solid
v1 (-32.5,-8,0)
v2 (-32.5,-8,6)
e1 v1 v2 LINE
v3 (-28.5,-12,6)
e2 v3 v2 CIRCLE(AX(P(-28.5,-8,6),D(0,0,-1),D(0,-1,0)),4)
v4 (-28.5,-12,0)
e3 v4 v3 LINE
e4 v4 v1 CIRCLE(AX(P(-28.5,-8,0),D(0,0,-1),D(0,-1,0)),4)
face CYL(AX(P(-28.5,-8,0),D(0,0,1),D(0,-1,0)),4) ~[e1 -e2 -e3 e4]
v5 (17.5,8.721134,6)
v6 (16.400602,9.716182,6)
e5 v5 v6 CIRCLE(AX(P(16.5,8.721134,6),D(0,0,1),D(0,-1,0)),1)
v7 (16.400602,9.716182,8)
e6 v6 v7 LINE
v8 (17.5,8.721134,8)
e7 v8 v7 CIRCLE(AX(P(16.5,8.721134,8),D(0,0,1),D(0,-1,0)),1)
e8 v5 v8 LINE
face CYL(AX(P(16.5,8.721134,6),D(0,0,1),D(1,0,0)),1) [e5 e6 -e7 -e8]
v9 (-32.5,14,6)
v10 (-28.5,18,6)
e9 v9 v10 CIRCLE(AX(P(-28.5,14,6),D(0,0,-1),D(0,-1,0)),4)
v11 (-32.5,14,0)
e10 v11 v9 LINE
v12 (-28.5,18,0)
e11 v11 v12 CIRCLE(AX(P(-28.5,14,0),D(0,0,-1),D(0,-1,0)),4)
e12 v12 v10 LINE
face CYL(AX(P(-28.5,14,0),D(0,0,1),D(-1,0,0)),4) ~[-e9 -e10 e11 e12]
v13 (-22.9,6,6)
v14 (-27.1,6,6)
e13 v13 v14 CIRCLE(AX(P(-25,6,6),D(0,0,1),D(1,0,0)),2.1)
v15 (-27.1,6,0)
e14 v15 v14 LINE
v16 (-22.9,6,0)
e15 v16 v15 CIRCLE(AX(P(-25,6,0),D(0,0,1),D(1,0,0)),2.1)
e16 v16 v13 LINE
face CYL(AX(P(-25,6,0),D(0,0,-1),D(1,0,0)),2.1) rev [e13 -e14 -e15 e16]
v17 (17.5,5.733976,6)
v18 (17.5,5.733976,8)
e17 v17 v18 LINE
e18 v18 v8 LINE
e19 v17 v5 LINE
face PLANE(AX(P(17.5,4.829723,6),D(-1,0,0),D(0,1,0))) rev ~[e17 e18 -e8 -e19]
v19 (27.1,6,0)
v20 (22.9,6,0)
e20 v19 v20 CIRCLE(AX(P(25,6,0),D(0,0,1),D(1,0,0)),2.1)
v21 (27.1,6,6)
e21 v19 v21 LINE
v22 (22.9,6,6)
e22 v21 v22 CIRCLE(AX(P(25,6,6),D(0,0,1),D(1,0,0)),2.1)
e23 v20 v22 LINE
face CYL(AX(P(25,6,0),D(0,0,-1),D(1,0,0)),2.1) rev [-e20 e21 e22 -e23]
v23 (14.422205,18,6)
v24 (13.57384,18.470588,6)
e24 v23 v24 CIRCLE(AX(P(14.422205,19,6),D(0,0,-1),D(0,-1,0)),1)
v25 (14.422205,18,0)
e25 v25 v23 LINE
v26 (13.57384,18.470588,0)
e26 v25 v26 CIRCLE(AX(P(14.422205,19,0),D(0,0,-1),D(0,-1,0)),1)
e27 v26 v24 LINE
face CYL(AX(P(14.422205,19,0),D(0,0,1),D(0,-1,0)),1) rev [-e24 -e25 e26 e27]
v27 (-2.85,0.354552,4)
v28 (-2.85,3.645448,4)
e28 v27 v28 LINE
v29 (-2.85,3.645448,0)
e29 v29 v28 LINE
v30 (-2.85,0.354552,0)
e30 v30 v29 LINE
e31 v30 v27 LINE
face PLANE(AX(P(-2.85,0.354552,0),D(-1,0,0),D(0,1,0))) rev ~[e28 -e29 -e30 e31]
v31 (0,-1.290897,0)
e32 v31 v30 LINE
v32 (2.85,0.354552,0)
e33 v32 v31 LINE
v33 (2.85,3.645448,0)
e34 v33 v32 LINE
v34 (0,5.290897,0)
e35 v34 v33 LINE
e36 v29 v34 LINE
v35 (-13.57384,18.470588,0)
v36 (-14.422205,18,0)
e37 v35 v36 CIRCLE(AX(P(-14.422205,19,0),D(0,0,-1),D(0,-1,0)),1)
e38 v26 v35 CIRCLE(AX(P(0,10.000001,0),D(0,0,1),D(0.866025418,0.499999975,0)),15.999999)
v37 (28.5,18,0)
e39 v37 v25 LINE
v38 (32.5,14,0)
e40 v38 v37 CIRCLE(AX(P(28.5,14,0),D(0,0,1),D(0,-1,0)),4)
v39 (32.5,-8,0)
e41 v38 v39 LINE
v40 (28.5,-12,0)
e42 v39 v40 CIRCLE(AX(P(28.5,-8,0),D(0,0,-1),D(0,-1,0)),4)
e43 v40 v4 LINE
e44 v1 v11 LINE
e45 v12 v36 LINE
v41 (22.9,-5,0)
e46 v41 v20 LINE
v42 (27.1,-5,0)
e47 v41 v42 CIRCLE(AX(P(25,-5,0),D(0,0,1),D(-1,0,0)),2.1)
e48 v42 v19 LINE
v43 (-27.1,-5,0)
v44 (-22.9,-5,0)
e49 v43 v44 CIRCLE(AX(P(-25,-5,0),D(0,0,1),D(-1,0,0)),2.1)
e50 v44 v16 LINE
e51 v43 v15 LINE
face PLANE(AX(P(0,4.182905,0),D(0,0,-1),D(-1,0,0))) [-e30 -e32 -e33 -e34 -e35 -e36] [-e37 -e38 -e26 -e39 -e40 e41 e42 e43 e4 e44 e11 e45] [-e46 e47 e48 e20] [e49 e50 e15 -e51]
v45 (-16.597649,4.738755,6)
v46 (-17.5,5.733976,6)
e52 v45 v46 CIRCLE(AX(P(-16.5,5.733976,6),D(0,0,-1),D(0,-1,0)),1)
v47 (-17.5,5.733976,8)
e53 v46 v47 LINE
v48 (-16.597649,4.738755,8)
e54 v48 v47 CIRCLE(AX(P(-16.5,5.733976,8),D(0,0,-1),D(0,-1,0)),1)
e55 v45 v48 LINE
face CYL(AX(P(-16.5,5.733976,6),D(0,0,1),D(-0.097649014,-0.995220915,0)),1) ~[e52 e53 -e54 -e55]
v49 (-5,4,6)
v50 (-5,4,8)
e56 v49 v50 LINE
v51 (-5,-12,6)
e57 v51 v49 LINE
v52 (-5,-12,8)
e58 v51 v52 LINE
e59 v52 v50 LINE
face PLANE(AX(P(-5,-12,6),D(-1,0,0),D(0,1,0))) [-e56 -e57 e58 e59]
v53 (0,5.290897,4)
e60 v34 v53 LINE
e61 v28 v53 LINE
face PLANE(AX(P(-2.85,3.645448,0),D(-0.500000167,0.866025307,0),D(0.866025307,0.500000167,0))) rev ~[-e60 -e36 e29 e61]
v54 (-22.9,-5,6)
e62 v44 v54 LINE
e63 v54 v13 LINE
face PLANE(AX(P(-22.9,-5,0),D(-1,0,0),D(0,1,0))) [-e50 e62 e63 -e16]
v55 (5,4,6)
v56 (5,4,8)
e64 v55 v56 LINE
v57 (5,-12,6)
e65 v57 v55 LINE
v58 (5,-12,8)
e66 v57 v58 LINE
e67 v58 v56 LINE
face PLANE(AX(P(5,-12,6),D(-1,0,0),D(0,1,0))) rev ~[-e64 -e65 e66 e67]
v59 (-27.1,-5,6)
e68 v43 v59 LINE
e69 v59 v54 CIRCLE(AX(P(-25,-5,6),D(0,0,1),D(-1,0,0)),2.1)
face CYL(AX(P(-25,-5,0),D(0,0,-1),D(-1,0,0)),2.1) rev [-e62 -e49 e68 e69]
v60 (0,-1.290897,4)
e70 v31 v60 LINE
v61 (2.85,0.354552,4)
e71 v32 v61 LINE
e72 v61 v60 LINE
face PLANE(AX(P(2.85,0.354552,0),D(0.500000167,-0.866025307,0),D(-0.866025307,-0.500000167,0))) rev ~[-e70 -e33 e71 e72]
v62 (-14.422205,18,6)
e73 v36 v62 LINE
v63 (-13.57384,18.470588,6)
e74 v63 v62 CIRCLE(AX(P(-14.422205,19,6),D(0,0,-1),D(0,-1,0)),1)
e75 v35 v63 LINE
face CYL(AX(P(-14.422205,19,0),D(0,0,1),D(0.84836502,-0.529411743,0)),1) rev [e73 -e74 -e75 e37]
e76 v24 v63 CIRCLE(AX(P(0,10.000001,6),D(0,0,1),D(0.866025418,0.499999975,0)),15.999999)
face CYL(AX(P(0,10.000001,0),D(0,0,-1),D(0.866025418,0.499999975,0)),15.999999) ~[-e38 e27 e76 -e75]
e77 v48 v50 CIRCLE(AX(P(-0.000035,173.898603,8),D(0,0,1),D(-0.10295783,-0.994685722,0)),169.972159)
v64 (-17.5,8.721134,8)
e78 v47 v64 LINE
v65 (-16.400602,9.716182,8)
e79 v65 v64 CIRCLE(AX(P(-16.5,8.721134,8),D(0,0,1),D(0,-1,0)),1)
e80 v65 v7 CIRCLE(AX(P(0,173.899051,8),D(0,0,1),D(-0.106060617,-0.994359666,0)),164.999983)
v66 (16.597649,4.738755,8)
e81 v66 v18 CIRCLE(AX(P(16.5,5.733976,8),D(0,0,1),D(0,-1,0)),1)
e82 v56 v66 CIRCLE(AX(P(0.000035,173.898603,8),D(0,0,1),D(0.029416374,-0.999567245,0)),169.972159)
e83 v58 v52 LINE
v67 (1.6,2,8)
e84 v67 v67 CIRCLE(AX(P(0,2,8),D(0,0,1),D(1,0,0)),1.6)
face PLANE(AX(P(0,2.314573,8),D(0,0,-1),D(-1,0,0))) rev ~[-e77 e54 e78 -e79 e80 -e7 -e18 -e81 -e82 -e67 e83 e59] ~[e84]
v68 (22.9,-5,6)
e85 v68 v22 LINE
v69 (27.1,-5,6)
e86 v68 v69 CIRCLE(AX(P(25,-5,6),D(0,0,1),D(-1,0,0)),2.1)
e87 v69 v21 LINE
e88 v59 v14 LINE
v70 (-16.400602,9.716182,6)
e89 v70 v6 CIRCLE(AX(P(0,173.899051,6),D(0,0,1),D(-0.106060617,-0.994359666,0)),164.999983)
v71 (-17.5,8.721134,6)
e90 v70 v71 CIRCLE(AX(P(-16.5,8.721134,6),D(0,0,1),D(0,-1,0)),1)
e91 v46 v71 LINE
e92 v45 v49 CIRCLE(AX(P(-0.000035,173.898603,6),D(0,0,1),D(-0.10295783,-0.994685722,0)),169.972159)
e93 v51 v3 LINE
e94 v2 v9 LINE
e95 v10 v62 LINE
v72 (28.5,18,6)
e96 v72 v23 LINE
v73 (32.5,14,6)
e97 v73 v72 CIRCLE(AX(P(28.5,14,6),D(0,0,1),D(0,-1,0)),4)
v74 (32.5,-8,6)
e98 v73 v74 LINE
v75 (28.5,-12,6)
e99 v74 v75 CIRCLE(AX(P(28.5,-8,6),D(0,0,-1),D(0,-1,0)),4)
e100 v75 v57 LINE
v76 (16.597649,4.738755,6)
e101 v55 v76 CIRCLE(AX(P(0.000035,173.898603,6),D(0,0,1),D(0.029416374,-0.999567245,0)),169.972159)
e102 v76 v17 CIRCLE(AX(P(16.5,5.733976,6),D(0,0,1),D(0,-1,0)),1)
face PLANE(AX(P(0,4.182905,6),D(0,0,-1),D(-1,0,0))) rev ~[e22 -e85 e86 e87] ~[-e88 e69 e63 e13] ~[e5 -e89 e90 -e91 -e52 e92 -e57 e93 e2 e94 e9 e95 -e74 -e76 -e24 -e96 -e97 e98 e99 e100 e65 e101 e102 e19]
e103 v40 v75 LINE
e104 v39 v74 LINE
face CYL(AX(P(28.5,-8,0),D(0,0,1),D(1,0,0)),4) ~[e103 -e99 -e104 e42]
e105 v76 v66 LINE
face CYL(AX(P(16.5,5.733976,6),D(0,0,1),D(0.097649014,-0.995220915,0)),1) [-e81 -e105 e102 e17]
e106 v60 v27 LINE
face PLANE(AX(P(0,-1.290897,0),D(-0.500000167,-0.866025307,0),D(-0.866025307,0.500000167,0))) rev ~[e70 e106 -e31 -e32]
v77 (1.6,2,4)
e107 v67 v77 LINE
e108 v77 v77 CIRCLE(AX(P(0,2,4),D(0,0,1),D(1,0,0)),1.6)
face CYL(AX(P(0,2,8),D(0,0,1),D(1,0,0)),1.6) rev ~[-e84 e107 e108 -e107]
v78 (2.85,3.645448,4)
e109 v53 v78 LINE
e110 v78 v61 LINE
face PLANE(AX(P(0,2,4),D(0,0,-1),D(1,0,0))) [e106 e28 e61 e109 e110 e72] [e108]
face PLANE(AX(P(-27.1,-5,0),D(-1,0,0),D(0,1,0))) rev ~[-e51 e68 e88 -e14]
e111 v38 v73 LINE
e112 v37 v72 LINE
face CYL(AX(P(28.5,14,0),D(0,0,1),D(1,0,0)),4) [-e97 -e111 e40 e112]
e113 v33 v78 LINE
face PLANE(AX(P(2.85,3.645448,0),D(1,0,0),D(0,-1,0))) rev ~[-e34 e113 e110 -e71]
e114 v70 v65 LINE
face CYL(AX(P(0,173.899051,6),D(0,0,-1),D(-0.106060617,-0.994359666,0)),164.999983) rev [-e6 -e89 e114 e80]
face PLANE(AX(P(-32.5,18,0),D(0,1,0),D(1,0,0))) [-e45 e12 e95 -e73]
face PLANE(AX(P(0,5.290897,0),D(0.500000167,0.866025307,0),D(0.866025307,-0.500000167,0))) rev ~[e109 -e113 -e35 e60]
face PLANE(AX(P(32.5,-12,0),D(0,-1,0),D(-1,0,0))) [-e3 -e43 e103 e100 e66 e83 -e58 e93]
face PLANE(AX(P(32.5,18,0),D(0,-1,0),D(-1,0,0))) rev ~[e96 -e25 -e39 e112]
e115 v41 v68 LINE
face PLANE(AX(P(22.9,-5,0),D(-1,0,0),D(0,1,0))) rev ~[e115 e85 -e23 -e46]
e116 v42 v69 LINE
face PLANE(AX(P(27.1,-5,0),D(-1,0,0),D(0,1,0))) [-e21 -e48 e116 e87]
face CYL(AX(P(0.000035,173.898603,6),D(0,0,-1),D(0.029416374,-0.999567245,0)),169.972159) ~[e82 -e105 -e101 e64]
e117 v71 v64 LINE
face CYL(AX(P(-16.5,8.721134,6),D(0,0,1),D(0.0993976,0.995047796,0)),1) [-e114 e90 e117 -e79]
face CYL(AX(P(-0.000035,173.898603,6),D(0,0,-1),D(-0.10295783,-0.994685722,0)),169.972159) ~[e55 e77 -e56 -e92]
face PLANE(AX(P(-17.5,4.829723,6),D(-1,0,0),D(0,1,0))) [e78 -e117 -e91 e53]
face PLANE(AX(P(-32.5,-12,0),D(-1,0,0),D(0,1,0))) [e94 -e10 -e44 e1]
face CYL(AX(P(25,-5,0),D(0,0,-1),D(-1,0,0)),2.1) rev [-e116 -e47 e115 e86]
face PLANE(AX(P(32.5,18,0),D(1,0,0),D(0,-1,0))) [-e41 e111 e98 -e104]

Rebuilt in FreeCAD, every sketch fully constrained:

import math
import FreeCAD as App
import Part
import Sketcher

V = App.Vector
Q = App.Units.Quantity


def edges_at(feature, points):
    """Names of the edges that pass closest to the given points."""
    edges = feature.Shape.Edges
    near = lambda p: min(range(len(edges)), key=lambda i: edges[i].distToShape(Part.Vertex(*p))[0])
    return sorted({f"Edge{near(p) + 1}" for p in points})


def add_polygon(sketch, points):
    """Adds a closed chain of lines whose ends are joined by coincident constraints."""
    first, n = sketch.GeometryCount, len(points)
    for a, b in zip(points, points[1:] + points[:1]):
        sketch.addGeometry(Part.LineSegment(App.Vector(*a, 0), App.Vector(*b, 0)), False)
    for i in range(n):
        sketch.addConstraint(Sketcher.Constraint("Coincident", first + i, 2, first + (i + 1) % n, 1))

doc = App.newDocument("Part")
params = doc.addObject("Spreadsheet::Sheet", "Params")
for row, (alias, value) in enumerate([
    ("sketch1_radius", "15.999999 mm"),
    ("sketch1_radius2", "2.1 mm"),
    ("sketch1_width", "65 mm"),
    ("sketch1_height", "30 mm"),
    ("sketch1_height2", "11 mm"),
    ("pad1_length", "6 mm"),
    ("sketch2_width", "10 mm"),
    ("sketch2_height", "16 mm"),
    ("sketch2_height2", "5 mm"),
    ("pad2_length", "2 mm"),
    ("sketch3_diameter", "3.2 mm"),
    ("pocket2_length", "4 mm"),
    ("fillet_radius", "4 mm"),
    ("fillet2_radius", "1 mm"),
], start=1):
    params.set(f"A{row}", alias)
    params.set(f"B{row}", "=" + value)
    params.setAlias(f"B{row}", alias)

body = doc.addObject("PartDesign::Body", "Body")

sketch1 = body.newObject("Sketcher::SketchObject", "Sketch")
sketch1.AttachmentSupport = (doc.getObject("XY_Plane"), [""])
sketch1.MapMode = "FlatFace"
sketch1.addGeometry(Part.LineSegment(V(32.5, -12, 0), V(32.5, 18, 0)), False)
sketch1.addGeometry(Part.LineSegment(V(32.5, 18, 0), V(13.9, 18, 0)), False)
sketch1.addGeometry(Part.ArcOfCircle(Part.Circle(V(0, 10, 0), V(0, 0, 1), 16), math.radians(30), math.radians(150)), False)
sketch1.addGeometry(Part.LineSegment(V(-13.9, 18, 0), V(-32.5, 18, 0)), False)
sketch1.addGeometry(Part.LineSegment(V(-32.5, 18, 0), V(-32.5, -12, 0)), False)
sketch1.addGeometry(Part.LineSegment(V(-32.5, -12, 0), V(32.5, -12, 0)), False)
sketch1.addGeometry(Part.LineSegment(V(22.9, -5, 0), V(22.9, 6, 0)), False)
sketch1.addGeometry(Part.ArcOfCircle(Part.Circle(V(25, 6, 0), V(0, 0, 1), 2.1), math.radians(0), math.radians(180)), False)
sketch1.addGeometry(Part.LineSegment(V(27.1, 6, 0), V(27.1, -5, 0)), False)
sketch1.addGeometry(Part.ArcOfCircle(Part.Circle(V(25, -5, 0), V(0, 0, 1), 2.1), math.radians(180), math.radians(360)), False)
sketch1.addGeometry(Part.LineSegment(V(-27.1, -5, 0), V(-27.1, 6, 0)), False)
sketch1.addGeometry(Part.ArcOfCircle(Part.Circle(V(-25, 6, 0), V(0, 0, 1), 2.1), math.radians(0), math.radians(180)), False)
sketch1.addGeometry(Part.LineSegment(V(-22.9, 6, 0), V(-22.9, -5, 0)), False)
sketch1.addGeometry(Part.ArcOfCircle(Part.Circle(V(-25, -5, 0), V(0, 0, 1), 2.1), math.radians(180), math.radians(360)), False)
sketch1.addConstraint(Sketcher.Constraint("Coincident", 0, 2, 1, 1))
sketch1.addConstraint(Sketcher.Constraint("Coincident", 1, 2, 2, 1))
sketch1.addConstraint(Sketcher.Constraint("Coincident", 2, 2, 3, 1))
sketch1.addConstraint(Sketcher.Constraint("Coincident", 3, 2, 4, 1))
sketch1.addConstraint(Sketcher.Constraint("Coincident", 4, 2, 5, 1))
sketch1.addConstraint(Sketcher.Constraint("Coincident", 5, 2, 0, 1))
sketch1.addConstraint(Sketcher.Constraint("Tangent", 6, 2, 7, 2))
sketch1.addConstraint(Sketcher.Constraint("Tangent", 7, 1, 8, 1))
sketch1.addConstraint(Sketcher.Constraint("Tangent", 8, 2, 9, 2))
sketch1.addConstraint(Sketcher.Constraint("Tangent", 9, 1, 6, 1))
sketch1.addConstraint(Sketcher.Constraint("Tangent", 10, 2, 11, 2))
sketch1.addConstraint(Sketcher.Constraint("Tangent", 11, 1, 12, 1))
sketch1.addConstraint(Sketcher.Constraint("Tangent", 12, 2, 13, 2))
sketch1.addConstraint(Sketcher.Constraint("Tangent", 13, 1, 10, 1))
sketch1.addConstraint(Sketcher.Constraint("Vertical", 0))
sketch1.addConstraint(Sketcher.Constraint("Horizontal", 1))
sketch1.addConstraint(Sketcher.Constraint("Horizontal", 3))
sketch1.addConstraint(Sketcher.Constraint("Vertical", 4))
sketch1.addConstraint(Sketcher.Constraint("Horizontal", 5))
sketch1.addConstraint(Sketcher.Constraint("Vertical", 6))
sketch1.addConstraint(Sketcher.Constraint("Vertical", 8))
sketch1.addConstraint(Sketcher.Constraint("Vertical", 10))
sketch1.addConstraint(Sketcher.Constraint("Vertical", 12))
sketch1.addConstraint(Sketcher.Constraint("Equal", 9, 11))
sketch1.addConstraint(Sketcher.Constraint("Symmetric", 7, 3, 11, 3, -2))
sketch1.addConstraint(Sketcher.Constraint("Symmetric", 1, 2, 2, 2, -2))
sketch1.addConstraint(Sketcher.Constraint("Horizontal", 9, 3, 13, 3))
sketch1.addConstraint(Sketcher.Constraint("Equal", 1, 3))
sketch1.addConstraint(Sketcher.Constraint("Radius", 2, Q("15.999999 mm")))
sketch1.addConstraint(Sketcher.Constraint("Radius", 7, Q("2.1 mm")))
sketch1.addConstraint(Sketcher.Constraint("DistanceX", 5, 1, 5, 2, Q("65 mm")))
sketch1.addConstraint(Sketcher.Constraint("DistanceY", 0, 1, 0, 2, Q("30 mm")))
sketch1.addConstraint(Sketcher.Constraint("DistanceY", 6, 1, 6, 2, Q("11 mm")))
sketch1.addConstraint(Sketcher.Constraint("DistanceY", -1, 1, 2, 3, Q("10.000001 mm")))
sketch1.addConstraint(Sketcher.Constraint("DistanceX", -1, 1, 7, 3, Q("25 mm")))
sketch1.addConstraint(Sketcher.Constraint("DistanceY", -1, 1, 7, 3, Q("6 mm")))
sketch1.addConstraint(Sketcher.Constraint("DistanceY", -1, 1, 0, 2, Q("18 mm")))
sketch1.setExpression("Constraints[28]", "Params.sketch1_radius")
sketch1.setExpression("Constraints[29]", "Params.sketch1_radius2")
sketch1.setExpression("Constraints[30]", "Params.sketch1_width")
sketch1.setExpression("Constraints[31]", "Params.sketch1_height")
sketch1.setExpression("Constraints[32]", "Params.sketch1_height2")
pad1 = body.newObject("PartDesign::Pad", "Pad")
pad1.Profile = sketch1
pad1.setExpression("Length", "Params.pad1_length")

sketch2 = body.newObject("Sketcher::SketchObject", "Sketch001")
sketch2.AttachmentSupport = (doc.getObject("XY_Plane"), [""])
sketch2.MapMode = "FlatFace"
sketch2.AttachmentOffset = App.Placement(V(0, 0, 6), App.Rotation())
sketch2.addGeometry(Part.LineSegment(V(-5, -12, 0), V(5, -12, 0)), False)
sketch2.addGeometry(Part.LineSegment(V(5, -12, 0), V(5, 4, 0)), False)
sketch2.addGeometry(Part.ArcOfCircle(Part.Circle(V(0.000035, 173.898603, 0), V(0, 0, 1), 169.972159), math.radians(-88.314323), math.radians(-84.090479)), False)
sketch2.addGeometry(Part.LineSegment(V(17.5, 4.829723, 0), V(17.5, 9.829723, 0)), False)
sketch2.addGeometry(Part.ArcOfCircle(Part.Circle(V(0, 173.899051, 0), V(0, 0, 1), 164.999983), math.radians(-96.088277), math.radians(-83.911723)), False)
sketch2.addGeometry(Part.LineSegment(V(-17.5, 9.829723, 0), V(-17.5, 4.829723, 0)), False)
sketch2.addGeometry(Part.ArcOfCircle(Part.Circle(V(-0.000035, 173.898603, 0), V(0, 0, 1), 169.972159), math.radians(-95.909521), math.radians(-91.685677)), False)
sketch2.addGeometry(Part.LineSegment(V(-5, 4, 0), V(-5, -12, 0)), False)
sketch2.addConstraint(Sketcher.Constraint("Coincident", 0, 2, 1, 1))
sketch2.addConstraint(Sketcher.Constraint("Coincident", 1, 2, 2, 1))
sketch2.addConstraint(Sketcher.Constraint("Coincident", 2, 2, 3, 1))
sketch2.addConstraint(Sketcher.Constraint("Coincident", 3, 2, 4, 2))
sketch2.addConstraint(Sketcher.Constraint("Coincident", 4, 1, 5, 1))
sketch2.addConstraint(Sketcher.Constraint("Coincident", 5, 2, 6, 1))
sketch2.addConstraint(Sketcher.Constraint("Coincident", 6, 2, 7, 1))
sketch2.addConstraint(Sketcher.Constraint("Coincident", 7, 2, 0, 1))
sketch2.addConstraint(Sketcher.Constraint("Horizontal", 0))
sketch2.addConstraint(Sketcher.Constraint("Vertical", 1))
sketch2.addConstraint(Sketcher.Constraint("Vertical", 3))
sketch2.addConstraint(Sketcher.Constraint("Vertical", 5))
sketch2.addConstraint(Sketcher.Constraint("Vertical", 7))
sketch2.addConstraint(Sketcher.Constraint("Equal", 2, 6))
sketch2.addConstraint(Sketcher.Constraint("Symmetric", 2, 3, 6, 3, -2))
sketch2.addConstraint(Sketcher.Constraint("Symmetric", 3, 2, 4, 1, -2))
sketch2.addConstraint(Sketcher.Constraint("Horizontal", 1, 2, 6, 2))
sketch2.addConstraint(Sketcher.Constraint("DistanceX", 0, 1, 0, 2, Q("10 mm")))
sketch2.addConstraint(Sketcher.Constraint("DistanceY", 1, 1, 1, 2, Q("16 mm")))
sketch2.addConstraint(Sketcher.Constraint("DistanceY", 3, 1, 3, 2, Q("5 mm")))
sketch2.addConstraint(Sketcher.Constraint("DistanceY", 0, 2, -1, 1, Q("12 mm")))
sketch2.addConstraint(Sketcher.Constraint("DistanceX", 4, 1, 3, 2, Q("35 mm")))
sketch2.addConstraint(Sketcher.Constraint("Radius", 2, Q("169.972159 mm")))
sketch2.addConstraint(Sketcher.Constraint("Radius", 4, Q("164.999983 mm")))
sketch2.addConstraint(Sketcher.Constraint("DistanceY", -1, 1, 4, 3, Q("173.899051 mm")))
sketch2.setExpression("Constraints[17]", "Params.sketch2_width")
sketch2.setExpression("Constraints[18]", "Params.sketch2_height")
sketch2.setExpression("Constraints[19]", "Params.sketch2_height2")
pad2 = body.newObject("PartDesign::Pad", "Pad001")
pad2.Profile = sketch2
pad2.setExpression("Length", "Params.pad2_length")

sketch3 = body.newObject("Sketcher::SketchObject", "Sketch002")
sketch3.AttachmentSupport = (doc.getObject("XY_Plane"), [""])
sketch3.MapMode = "FlatFace"
sketch3.AttachmentOffset = App.Placement(V(0, 0, 8), App.Rotation())
sketch3.addGeometry(Part.Circle(V(0, 2, 0), V(0, 0, 1), 1.6), False)
sketch3.addConstraint(Sketcher.Constraint("PointOnObject", 0, 3, -2))
sketch3.addConstraint(Sketcher.Constraint("Diameter", 0, Q("3.2 mm")))
sketch3.addConstraint(Sketcher.Constraint("DistanceY", -1, 1, 0, 3, Q("2 mm")))
sketch3.setExpression("Constraints[1]", "Params.sketch3_diameter")
pocket1 = body.newObject("PartDesign::Pocket", "Pocket")
pocket1.Profile = sketch3
pocket1.Type = "ThroughAll"

sketch4 = body.newObject("Sketcher::SketchObject", "Sketch003")
sketch4.AttachmentSupport = (doc.getObject("XY_Plane"), [""])
sketch4.MapMode = "FlatFace"
add_polygon(sketch4, [(2.9, 3.6), (2.9, 0.4), (0, -1.3), (-2.9, 0.4), (-2.9, 3.6), (0, 5.3)])
sketch4.addConstraint(Sketcher.Constraint("Vertical", 0))
sketch4.addConstraint(Sketcher.Constraint("Vertical", 3))
sketch4.addConstraint(Sketcher.Constraint("Symmetric", 0, 2, 2, 2, -2))
sketch4.addConstraint(Sketcher.Constraint("PointOnObject", 1, 2, -2))
sketch4.addConstraint(Sketcher.Constraint("PointOnObject", 4, 2, -2))
sketch4.addConstraint(Sketcher.Constraint("Parallel", 1, 4))
sketch4.addConstraint(Sketcher.Constraint("Parallel", 2, 5))
sketch4.addConstraint(Sketcher.Constraint("Angle", 1, Q("-149.999989 deg")))
sketch4.addConstraint(Sketcher.Constraint("DistanceX", 2, 2, 0, 2, Q("5.7 mm")))
sketch4.addConstraint(Sketcher.Constraint("DistanceY", 0, 2, 0, 1, Q("3.290896 mm")))
sketch4.addConstraint(Sketcher.Constraint("DistanceY", -1, 1, 3, 2, Q("3.645448 mm")))
pocket2 = body.newObject("PartDesign::Pocket", "Pocket001")
pocket2.Profile = sketch4
pocket2.setExpression("Length", "Params.pocket2_length")
pocket2.Reversed = True
doc.recompute()

fillet = body.newObject("PartDesign::Fillet", "Fillet")
fillet.Base = (pocket2, edges_at(pocket2, [
    (32.5, 18, 3),
    (32.5, -12, 3),
    (-32.5, 18, 3),
    (-32.5, -12, 3),
]))
fillet.setExpression("Radius", "Params.fillet_radius")
doc.recompute()

fillet2 = body.newObject("PartDesign::Fillet", "Fillet001")
fillet2.Base = (fillet, edges_at(fillet, [
    (17.5, 9.83, 7),
    (17.5, 4.83, 7),
    (-17.5, 9.83, 7),
    (-17.5, 4.83, 7),
    (-13.856, 18, 3),
    (13.856, 18, 3),
]))
fillet2.setExpression("Radius", "Params.fillet2_radius")

doc.recompute()
